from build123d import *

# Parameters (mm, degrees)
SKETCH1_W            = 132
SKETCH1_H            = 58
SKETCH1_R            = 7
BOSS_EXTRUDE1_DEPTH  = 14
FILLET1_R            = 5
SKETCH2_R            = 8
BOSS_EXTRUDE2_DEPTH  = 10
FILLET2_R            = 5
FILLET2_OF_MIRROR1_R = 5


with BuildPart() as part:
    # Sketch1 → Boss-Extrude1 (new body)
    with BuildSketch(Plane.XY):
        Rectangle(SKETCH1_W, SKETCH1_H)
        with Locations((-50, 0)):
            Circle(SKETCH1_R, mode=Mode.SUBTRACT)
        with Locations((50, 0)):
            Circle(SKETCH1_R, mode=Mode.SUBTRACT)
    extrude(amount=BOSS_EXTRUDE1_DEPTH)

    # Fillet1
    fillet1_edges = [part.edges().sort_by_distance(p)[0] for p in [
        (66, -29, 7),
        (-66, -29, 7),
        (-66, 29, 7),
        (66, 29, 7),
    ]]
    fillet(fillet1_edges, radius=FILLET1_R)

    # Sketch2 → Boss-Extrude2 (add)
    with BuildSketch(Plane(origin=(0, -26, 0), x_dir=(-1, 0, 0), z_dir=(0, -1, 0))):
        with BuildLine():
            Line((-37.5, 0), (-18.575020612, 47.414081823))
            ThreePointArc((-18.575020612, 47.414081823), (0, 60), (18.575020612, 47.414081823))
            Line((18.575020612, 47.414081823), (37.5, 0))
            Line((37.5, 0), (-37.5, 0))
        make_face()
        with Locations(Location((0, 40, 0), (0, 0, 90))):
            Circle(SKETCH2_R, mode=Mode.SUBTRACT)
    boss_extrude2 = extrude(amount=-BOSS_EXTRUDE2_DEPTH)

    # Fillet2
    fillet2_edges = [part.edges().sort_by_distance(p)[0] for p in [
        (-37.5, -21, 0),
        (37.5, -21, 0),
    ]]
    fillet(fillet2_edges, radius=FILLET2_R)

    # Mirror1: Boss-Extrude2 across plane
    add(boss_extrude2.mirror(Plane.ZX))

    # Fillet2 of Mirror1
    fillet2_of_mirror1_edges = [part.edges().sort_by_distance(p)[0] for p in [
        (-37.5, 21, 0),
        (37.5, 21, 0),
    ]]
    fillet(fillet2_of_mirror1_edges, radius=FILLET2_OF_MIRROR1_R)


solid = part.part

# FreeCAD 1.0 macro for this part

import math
import FreeCAD as App
import Part
import Sketcher
from FreeCAD import Vector


def edges_at(feature, points):
    """Names of the edges that pass closest to the given points."""
    edges = feature.Shape.Edges
    near = lambda p: min(range(len(edges)), key=lambda i: edges[i].distToShape(Part.Vertex(*p))[0])
    return sorted({f"Edge{near(p) + 1}" for p in points})

doc = App.newDocument("Part")
body = doc.addObject("PartDesign::Body", "Body")

sketch1 = body.newObject("Sketcher::SketchObject", "Sketch")
sketch1.AttachmentSupport = (doc.getObject("XY_Plane"), [""])
sketch1.MapMode = "FlatFace"
sketch1.addGeometry([
    Part.LineSegment(Vector(-66, 29, 0), Vector(-66, -29, 0)),
    Part.LineSegment(Vector(-66, -29, 0), Vector(66, -29, 0)),
    Part.LineSegment(Vector(66, -29, 0), Vector(66, 29, 0)),
    Part.LineSegment(Vector(66, 29, 0), Vector(-66, 29, 0)),
    Part.Circle(Vector(-50, 0, 0), Vector(0, 0, 1), 7),
    Part.Circle(Vector(50, 0, 0), Vector(0, 0, 1), 7),
], False)
sketch1.addConstraint([
    Sketcher.Constraint("Coincident", 0, 2, 1, 1),
    Sketcher.Constraint("Coincident", 1, 2, 2, 1),
    Sketcher.Constraint("Coincident", 2, 2, 3, 1),
    Sketcher.Constraint("Coincident", 3, 2, 0, 1),
    Sketcher.Constraint("Vertical", 0),
    Sketcher.Constraint("Horizontal", 1),
    Sketcher.Constraint("Vertical", 2),
    Sketcher.Constraint("Horizontal", 3),
    Sketcher.Constraint("Equal", 4, 5),
    Sketcher.Constraint("Symmetric", 4, 3, 5, 3, -1, 1),
    Sketcher.Constraint("Symmetric", 0, 2, 2, 2, -1, 1),
    Sketcher.Constraint("PointOnObject", 4, 3, -1),
    Sketcher.Constraint("Diameter", 4, 14.0),
    Sketcher.Constraint("DistanceX", 1, 1, 1, 2, 132.0),
    Sketcher.Constraint("DistanceY", 0, 2, 0, 1, 58.0),
    Sketcher.Constraint("DistanceX", 4, 3, -1, 1, 50.0),
])
pad1 = body.newObject("PartDesign::Pad", "Pad")
pad1.Profile = sketch1
pad1.Length = 14
doc.recompute()

fillet = body.newObject("PartDesign::Fillet", "Fillet")
fillet.Base = (pad1, edges_at(pad1, [
    (66, -29, 7),
    (-66, -29, 7),
    (-66, 29, 7),
    (66, 29, 7),
]))
fillet.Radius = 5

sketch2 = body.newObject("Sketcher::SketchObject", "Sketch001")
sketch2.AttachmentSupport = (doc.getObject("XZ_Plane"), [""])
sketch2.MapMode = "FlatFace"
sketch2.AttachmentOffset = App.Placement(Vector(0, 0, 26), App.Rotation())
sketch2.addGeometry([
    Part.LineSegment(Vector(19, -47, 0), Vector(38, 0, 0)),
    Part.LineSegment(Vector(38, 0, 0), Vector(-38, 0, 0)),
    Part.LineSegment(Vector(-38, 0, 0), Vector(-19, -47, 0)),
    Part.ArcOfCircle(Part.Circle(Vector(0, -40, 0), Vector(0, 0, 1), 20), math.radians(-158), math.radians(-22)),
    Part.Circle(Vector(0, -40, 0), Vector(0, 0, 1), 8),
], False)
sketch2.addConstraint([
    Sketcher.Constraint("Coincident", 0, 2, 1, 1),
    Sketcher.Constraint("Coincident", 1, 2, 2, 1),
    Sketcher.Constraint("Tangent", 2, 2, 3, 1),
    Sketcher.Constraint("Tangent", 3, 2, 0, 1),
    Sketcher.Constraint("Horizontal", 1),
    Sketcher.Constraint("Coincident", 4, 3, 3, 3),
    Sketcher.Constraint("Symmetric", 0, 2, 1, 2, -1, 1),
    Sketcher.Constraint("PointOnObject", 3, 3, -2),
    Sketcher.Constraint("Diameter", 4, 16.0),
    Sketcher.Constraint("Radius", 3, 20.0),
    Sketcher.Constraint("DistanceX", 1, 2, 1, 1, 75.0),
    Sketcher.Constraint("DistanceY", 3, 3, -1, 1, 40.0),
])
pad2 = body.newObject("PartDesign::Pad", "Pad001")
pad2.Profile = sketch2
pad2.Length = 10
pad2.Reversed = True
doc.recompute()

fillet2 = body.newObject("PartDesign::Fillet", "Fillet001")
fillet2.Base = (pad2, edges_at(pad2, [(-37.5, -21, 0), (37.5, -21, 0)]))
fillet2.Radius = 5
doc.recompute()

mirrored = body.newObject("PartDesign::Mirrored", "Mirrored")
mirrored.Originals = [pad2]
mirrored.MirrorPlane = (doc.getObject("XZ_Plane"), [""])
body.Tip = mirrored
doc.recompute()

fillet3 = body.newObject("PartDesign::Fillet", "Fillet002")
fillet3.Base = (mirrored, edges_at(mirrored, [(-37.5, 21, 0), (37.5, 21, 0)]))
fillet3.Radius = 5

doc.recompute()
